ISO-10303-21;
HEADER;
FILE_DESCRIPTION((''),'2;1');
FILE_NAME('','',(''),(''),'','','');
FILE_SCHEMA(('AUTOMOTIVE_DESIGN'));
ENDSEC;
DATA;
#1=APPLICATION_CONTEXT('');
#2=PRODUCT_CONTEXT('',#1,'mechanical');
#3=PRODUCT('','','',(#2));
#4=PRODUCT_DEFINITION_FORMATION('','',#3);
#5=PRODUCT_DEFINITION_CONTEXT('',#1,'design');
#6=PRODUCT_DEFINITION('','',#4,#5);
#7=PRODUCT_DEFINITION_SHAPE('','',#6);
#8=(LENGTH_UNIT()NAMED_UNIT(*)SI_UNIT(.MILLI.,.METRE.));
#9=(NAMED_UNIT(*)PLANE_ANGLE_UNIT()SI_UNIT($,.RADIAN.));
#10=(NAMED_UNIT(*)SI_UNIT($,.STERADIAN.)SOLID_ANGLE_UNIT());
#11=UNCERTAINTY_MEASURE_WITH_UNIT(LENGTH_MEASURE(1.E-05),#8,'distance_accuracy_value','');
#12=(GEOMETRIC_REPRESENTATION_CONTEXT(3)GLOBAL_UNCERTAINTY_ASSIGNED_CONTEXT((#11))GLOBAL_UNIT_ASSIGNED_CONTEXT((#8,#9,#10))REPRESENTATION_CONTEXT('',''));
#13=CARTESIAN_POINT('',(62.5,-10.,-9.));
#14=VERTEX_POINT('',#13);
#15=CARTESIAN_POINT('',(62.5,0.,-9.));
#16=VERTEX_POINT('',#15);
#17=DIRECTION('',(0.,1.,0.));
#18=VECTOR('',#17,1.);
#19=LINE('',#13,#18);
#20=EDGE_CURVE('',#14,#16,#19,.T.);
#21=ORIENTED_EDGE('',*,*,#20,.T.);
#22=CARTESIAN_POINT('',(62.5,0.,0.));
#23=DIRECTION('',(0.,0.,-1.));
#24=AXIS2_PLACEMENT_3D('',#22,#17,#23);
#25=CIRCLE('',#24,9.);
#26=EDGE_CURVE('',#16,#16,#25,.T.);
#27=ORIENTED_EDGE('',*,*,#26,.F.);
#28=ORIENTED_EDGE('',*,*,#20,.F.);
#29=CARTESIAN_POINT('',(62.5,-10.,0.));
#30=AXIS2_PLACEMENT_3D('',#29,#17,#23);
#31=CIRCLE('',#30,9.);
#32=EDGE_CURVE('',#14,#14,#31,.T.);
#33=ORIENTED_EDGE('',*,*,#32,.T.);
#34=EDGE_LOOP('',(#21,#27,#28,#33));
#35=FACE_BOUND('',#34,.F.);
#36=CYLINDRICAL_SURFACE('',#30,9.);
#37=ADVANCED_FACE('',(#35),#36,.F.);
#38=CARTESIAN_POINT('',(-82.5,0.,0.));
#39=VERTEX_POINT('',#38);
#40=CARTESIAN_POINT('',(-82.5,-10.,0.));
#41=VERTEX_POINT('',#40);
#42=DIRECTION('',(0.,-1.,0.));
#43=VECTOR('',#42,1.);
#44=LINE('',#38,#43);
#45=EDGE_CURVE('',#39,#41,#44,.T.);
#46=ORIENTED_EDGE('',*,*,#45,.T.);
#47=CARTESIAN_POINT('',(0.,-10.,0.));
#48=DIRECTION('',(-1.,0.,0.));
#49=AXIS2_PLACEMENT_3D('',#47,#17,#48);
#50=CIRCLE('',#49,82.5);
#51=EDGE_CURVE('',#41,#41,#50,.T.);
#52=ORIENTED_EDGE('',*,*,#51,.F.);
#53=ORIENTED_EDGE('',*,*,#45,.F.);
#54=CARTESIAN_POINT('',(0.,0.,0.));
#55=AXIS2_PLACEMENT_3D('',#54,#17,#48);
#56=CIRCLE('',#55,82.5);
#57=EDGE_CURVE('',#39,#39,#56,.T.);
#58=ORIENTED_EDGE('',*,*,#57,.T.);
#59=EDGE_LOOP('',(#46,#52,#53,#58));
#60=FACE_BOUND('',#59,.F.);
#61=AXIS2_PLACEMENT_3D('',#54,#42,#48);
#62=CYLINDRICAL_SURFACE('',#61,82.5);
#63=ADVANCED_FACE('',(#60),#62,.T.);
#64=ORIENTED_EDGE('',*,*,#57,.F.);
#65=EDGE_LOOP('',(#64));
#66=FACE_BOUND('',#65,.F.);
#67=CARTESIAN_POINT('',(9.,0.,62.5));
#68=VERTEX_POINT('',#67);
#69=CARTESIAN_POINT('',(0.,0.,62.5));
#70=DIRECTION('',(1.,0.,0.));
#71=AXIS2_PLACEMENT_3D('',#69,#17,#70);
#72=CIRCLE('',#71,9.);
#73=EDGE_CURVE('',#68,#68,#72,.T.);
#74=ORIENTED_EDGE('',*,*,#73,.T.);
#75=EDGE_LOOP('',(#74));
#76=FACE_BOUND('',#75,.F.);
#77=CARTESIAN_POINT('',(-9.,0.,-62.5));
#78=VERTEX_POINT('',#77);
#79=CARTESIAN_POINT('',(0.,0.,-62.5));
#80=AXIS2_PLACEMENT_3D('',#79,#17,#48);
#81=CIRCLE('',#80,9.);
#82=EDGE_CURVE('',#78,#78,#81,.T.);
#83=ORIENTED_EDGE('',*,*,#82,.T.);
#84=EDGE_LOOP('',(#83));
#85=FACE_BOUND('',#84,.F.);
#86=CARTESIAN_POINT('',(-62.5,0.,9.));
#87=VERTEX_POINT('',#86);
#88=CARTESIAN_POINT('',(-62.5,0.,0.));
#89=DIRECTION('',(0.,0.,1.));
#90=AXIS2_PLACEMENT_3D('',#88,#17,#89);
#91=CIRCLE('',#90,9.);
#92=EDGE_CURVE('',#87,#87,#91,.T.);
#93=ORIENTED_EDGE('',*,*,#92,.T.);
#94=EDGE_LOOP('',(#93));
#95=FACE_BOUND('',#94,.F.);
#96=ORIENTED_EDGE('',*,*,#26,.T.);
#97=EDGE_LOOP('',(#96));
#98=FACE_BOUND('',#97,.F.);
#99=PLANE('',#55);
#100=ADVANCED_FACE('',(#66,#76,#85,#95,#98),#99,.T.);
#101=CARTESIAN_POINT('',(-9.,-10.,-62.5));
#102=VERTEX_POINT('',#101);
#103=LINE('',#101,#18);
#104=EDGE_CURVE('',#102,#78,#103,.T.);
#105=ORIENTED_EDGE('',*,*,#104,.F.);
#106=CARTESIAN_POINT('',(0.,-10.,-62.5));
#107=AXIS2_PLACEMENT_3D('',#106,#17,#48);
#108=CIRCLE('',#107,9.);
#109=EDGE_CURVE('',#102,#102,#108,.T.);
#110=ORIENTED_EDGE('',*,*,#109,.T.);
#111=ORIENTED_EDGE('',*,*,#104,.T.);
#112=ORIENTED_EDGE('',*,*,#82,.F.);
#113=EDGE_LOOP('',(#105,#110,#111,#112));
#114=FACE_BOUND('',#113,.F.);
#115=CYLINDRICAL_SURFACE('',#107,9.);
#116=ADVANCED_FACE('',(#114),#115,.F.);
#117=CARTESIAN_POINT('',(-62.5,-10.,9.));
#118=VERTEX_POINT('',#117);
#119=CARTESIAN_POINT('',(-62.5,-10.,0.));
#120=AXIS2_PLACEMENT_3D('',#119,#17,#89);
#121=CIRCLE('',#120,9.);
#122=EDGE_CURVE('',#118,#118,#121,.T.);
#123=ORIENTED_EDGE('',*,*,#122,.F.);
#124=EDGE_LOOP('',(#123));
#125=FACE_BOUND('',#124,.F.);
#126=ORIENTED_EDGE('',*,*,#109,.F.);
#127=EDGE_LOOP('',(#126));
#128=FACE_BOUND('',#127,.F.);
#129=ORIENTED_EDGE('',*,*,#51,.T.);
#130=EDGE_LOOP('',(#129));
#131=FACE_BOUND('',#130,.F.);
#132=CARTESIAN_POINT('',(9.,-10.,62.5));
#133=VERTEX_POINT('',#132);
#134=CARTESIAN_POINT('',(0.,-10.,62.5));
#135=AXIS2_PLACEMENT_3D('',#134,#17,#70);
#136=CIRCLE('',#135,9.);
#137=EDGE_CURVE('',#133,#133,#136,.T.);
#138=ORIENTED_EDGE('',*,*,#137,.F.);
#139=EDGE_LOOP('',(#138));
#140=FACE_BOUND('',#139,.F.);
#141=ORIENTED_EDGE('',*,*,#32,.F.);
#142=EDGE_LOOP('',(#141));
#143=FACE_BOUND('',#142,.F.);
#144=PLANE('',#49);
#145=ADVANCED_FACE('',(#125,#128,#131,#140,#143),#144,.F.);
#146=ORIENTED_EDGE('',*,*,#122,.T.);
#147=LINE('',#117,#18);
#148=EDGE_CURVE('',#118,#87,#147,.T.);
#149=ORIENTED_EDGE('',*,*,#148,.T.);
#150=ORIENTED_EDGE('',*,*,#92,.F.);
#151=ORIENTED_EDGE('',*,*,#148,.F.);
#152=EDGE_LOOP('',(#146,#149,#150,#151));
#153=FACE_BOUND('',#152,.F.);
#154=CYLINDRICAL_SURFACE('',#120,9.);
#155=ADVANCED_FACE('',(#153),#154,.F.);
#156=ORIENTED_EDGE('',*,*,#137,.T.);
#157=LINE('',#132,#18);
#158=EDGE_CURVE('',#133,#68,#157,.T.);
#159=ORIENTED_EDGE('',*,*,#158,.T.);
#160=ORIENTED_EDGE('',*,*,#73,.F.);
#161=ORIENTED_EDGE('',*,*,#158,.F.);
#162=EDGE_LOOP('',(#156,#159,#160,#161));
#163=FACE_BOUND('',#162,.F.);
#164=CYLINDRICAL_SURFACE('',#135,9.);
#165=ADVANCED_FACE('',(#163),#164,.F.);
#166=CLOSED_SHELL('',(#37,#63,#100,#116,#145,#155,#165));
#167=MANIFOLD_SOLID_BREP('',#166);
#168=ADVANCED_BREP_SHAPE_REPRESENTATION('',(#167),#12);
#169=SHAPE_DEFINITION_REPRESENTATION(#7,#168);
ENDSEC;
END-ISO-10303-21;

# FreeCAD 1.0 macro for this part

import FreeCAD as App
import Part
import Sketcher
from FreeCAD import Vector
Q = App.Units.Quantity


def add_polygon(sketch, points):
    """Adds a closed chain of lines whose ends are joined by coincident constraints."""
    first, n = sketch.GeometryCount, len(points)
    for a, b in zip(points, points[1:] + points[:1]):
        sketch.addGeometry(Part.LineSegment(App.Vector(*a, 0), App.Vector(*b, 0)), False)
    for i in range(n):
        sketch.addConstraint(Sketcher.Constraint("Coincident", first + i, 2, first + (i + 1) % n, 1))

doc = App.newDocument("Part")
params = doc.addObject("Spreadsheet::Sheet", "Params")
for row, (alias, value) in enumerate([
    ("sketch1_height", "10 mm"),
    ("sketch1_width", "82.5 mm"),
    ("revolution_angle", "360 deg"),
    ("sketch2_diameter", "18 mm"),
    ("hole_diameter", "18 mm"),
], start=1):
    params.set(f"A{row}", alias)
    params.set(f"B{row}", "=" + value)
    params.setAlias(f"B{row}", alias)

body = doc.addObject("PartDesign::Body", "Body")

sketch1 = body.newObject("Sketcher::SketchObject", "Sketch")
sketch1.AttachmentSupport = (doc.getObject("XY_Plane"), [""])
sketch1.MapMode = "FlatFace"
add_polygon(sketch1, [(0, 0), (-82, 0), (-82, -10), (0, -10)])
sketch1.addConstraint(Sketcher.Constraint("Horizontal", 0))
sketch1.addConstraint(Sketcher.Constraint("Vertical", 1))
sketch1.addConstraint(Sketcher.Constraint("Horizontal", 2))
sketch1.addConstraint(Sketcher.Constraint("Vertical", 3))
sketch1.addConstraint(Sketcher.Constraint("Coincident", 3, 2, -1, 1))
sketch1.addConstraint(Sketcher.Constraint("DistanceY", 1, 2, 1, 1, Q("10 mm")))
sketch1.addConstraint(Sketcher.Constraint("DistanceX", 0, 2, 0, 1, Q("82.5 mm")))
sketch1.setExpression("Constraints[9]", "Params.sketch1_height")
sketch1.setExpression("Constraints[10]", "Params.sketch1_width")
revolution = body.newObject("PartDesign::Revolution", "Revolution")
revolution.Profile = sketch1
revolution.ReferenceAxis = (sketch1, ["V_Axis"])
revolution.setExpression("Angle", "Params.revolution_angle")

sketch2 = body.newObject("Sketcher::SketchObject", "Sketch001")
sketch2.AttachmentSupport = (doc.getObject("XZ_Plane"), [""])
sketch2.MapMode = "FlatFace"
sketch2.AttachmentOffset = App.Placement(Vector(0, 0, 10), App.Rotation())
sketch2.addGeometry(Part.Circle(Vector(62, 0, 0), Vector(0, 0, 1), 9), False)
sketch2.addConstraint(Sketcher.Constraint("PointOnObject", 0, 3, -1))
sketch2.addConstraint(Sketcher.Constraint("Diameter", 0, Q("18 mm")))
sketch2.addConstraint(Sketcher.Constraint("DistanceX", -1, 1, 0, 3, Q("62.5 mm")))
sketch2.setExpression("Constraints[1]", "Params.sketch2_diameter")
doc.recompute()
hole = body.newObject("PartDesign::Hole", "Hole")
hole.Profile = sketch2
hole.ThreadType = "None"
hole.setExpression("Diameter", "Params.hole_diameter")
hole.DepthType = "ThroughAll"
doc.recompute()

polarpattern = body.newObject("PartDesign::PolarPattern", "PolarPattern")
polarpattern.Originals = [hole]
polarpattern.Axis = (doc.getObject("Y_Axis"), [""])
polarpattern.Angle = 360
polarpattern.Occurrences = 4
body.Tip = polarpattern

doc.recompute()
